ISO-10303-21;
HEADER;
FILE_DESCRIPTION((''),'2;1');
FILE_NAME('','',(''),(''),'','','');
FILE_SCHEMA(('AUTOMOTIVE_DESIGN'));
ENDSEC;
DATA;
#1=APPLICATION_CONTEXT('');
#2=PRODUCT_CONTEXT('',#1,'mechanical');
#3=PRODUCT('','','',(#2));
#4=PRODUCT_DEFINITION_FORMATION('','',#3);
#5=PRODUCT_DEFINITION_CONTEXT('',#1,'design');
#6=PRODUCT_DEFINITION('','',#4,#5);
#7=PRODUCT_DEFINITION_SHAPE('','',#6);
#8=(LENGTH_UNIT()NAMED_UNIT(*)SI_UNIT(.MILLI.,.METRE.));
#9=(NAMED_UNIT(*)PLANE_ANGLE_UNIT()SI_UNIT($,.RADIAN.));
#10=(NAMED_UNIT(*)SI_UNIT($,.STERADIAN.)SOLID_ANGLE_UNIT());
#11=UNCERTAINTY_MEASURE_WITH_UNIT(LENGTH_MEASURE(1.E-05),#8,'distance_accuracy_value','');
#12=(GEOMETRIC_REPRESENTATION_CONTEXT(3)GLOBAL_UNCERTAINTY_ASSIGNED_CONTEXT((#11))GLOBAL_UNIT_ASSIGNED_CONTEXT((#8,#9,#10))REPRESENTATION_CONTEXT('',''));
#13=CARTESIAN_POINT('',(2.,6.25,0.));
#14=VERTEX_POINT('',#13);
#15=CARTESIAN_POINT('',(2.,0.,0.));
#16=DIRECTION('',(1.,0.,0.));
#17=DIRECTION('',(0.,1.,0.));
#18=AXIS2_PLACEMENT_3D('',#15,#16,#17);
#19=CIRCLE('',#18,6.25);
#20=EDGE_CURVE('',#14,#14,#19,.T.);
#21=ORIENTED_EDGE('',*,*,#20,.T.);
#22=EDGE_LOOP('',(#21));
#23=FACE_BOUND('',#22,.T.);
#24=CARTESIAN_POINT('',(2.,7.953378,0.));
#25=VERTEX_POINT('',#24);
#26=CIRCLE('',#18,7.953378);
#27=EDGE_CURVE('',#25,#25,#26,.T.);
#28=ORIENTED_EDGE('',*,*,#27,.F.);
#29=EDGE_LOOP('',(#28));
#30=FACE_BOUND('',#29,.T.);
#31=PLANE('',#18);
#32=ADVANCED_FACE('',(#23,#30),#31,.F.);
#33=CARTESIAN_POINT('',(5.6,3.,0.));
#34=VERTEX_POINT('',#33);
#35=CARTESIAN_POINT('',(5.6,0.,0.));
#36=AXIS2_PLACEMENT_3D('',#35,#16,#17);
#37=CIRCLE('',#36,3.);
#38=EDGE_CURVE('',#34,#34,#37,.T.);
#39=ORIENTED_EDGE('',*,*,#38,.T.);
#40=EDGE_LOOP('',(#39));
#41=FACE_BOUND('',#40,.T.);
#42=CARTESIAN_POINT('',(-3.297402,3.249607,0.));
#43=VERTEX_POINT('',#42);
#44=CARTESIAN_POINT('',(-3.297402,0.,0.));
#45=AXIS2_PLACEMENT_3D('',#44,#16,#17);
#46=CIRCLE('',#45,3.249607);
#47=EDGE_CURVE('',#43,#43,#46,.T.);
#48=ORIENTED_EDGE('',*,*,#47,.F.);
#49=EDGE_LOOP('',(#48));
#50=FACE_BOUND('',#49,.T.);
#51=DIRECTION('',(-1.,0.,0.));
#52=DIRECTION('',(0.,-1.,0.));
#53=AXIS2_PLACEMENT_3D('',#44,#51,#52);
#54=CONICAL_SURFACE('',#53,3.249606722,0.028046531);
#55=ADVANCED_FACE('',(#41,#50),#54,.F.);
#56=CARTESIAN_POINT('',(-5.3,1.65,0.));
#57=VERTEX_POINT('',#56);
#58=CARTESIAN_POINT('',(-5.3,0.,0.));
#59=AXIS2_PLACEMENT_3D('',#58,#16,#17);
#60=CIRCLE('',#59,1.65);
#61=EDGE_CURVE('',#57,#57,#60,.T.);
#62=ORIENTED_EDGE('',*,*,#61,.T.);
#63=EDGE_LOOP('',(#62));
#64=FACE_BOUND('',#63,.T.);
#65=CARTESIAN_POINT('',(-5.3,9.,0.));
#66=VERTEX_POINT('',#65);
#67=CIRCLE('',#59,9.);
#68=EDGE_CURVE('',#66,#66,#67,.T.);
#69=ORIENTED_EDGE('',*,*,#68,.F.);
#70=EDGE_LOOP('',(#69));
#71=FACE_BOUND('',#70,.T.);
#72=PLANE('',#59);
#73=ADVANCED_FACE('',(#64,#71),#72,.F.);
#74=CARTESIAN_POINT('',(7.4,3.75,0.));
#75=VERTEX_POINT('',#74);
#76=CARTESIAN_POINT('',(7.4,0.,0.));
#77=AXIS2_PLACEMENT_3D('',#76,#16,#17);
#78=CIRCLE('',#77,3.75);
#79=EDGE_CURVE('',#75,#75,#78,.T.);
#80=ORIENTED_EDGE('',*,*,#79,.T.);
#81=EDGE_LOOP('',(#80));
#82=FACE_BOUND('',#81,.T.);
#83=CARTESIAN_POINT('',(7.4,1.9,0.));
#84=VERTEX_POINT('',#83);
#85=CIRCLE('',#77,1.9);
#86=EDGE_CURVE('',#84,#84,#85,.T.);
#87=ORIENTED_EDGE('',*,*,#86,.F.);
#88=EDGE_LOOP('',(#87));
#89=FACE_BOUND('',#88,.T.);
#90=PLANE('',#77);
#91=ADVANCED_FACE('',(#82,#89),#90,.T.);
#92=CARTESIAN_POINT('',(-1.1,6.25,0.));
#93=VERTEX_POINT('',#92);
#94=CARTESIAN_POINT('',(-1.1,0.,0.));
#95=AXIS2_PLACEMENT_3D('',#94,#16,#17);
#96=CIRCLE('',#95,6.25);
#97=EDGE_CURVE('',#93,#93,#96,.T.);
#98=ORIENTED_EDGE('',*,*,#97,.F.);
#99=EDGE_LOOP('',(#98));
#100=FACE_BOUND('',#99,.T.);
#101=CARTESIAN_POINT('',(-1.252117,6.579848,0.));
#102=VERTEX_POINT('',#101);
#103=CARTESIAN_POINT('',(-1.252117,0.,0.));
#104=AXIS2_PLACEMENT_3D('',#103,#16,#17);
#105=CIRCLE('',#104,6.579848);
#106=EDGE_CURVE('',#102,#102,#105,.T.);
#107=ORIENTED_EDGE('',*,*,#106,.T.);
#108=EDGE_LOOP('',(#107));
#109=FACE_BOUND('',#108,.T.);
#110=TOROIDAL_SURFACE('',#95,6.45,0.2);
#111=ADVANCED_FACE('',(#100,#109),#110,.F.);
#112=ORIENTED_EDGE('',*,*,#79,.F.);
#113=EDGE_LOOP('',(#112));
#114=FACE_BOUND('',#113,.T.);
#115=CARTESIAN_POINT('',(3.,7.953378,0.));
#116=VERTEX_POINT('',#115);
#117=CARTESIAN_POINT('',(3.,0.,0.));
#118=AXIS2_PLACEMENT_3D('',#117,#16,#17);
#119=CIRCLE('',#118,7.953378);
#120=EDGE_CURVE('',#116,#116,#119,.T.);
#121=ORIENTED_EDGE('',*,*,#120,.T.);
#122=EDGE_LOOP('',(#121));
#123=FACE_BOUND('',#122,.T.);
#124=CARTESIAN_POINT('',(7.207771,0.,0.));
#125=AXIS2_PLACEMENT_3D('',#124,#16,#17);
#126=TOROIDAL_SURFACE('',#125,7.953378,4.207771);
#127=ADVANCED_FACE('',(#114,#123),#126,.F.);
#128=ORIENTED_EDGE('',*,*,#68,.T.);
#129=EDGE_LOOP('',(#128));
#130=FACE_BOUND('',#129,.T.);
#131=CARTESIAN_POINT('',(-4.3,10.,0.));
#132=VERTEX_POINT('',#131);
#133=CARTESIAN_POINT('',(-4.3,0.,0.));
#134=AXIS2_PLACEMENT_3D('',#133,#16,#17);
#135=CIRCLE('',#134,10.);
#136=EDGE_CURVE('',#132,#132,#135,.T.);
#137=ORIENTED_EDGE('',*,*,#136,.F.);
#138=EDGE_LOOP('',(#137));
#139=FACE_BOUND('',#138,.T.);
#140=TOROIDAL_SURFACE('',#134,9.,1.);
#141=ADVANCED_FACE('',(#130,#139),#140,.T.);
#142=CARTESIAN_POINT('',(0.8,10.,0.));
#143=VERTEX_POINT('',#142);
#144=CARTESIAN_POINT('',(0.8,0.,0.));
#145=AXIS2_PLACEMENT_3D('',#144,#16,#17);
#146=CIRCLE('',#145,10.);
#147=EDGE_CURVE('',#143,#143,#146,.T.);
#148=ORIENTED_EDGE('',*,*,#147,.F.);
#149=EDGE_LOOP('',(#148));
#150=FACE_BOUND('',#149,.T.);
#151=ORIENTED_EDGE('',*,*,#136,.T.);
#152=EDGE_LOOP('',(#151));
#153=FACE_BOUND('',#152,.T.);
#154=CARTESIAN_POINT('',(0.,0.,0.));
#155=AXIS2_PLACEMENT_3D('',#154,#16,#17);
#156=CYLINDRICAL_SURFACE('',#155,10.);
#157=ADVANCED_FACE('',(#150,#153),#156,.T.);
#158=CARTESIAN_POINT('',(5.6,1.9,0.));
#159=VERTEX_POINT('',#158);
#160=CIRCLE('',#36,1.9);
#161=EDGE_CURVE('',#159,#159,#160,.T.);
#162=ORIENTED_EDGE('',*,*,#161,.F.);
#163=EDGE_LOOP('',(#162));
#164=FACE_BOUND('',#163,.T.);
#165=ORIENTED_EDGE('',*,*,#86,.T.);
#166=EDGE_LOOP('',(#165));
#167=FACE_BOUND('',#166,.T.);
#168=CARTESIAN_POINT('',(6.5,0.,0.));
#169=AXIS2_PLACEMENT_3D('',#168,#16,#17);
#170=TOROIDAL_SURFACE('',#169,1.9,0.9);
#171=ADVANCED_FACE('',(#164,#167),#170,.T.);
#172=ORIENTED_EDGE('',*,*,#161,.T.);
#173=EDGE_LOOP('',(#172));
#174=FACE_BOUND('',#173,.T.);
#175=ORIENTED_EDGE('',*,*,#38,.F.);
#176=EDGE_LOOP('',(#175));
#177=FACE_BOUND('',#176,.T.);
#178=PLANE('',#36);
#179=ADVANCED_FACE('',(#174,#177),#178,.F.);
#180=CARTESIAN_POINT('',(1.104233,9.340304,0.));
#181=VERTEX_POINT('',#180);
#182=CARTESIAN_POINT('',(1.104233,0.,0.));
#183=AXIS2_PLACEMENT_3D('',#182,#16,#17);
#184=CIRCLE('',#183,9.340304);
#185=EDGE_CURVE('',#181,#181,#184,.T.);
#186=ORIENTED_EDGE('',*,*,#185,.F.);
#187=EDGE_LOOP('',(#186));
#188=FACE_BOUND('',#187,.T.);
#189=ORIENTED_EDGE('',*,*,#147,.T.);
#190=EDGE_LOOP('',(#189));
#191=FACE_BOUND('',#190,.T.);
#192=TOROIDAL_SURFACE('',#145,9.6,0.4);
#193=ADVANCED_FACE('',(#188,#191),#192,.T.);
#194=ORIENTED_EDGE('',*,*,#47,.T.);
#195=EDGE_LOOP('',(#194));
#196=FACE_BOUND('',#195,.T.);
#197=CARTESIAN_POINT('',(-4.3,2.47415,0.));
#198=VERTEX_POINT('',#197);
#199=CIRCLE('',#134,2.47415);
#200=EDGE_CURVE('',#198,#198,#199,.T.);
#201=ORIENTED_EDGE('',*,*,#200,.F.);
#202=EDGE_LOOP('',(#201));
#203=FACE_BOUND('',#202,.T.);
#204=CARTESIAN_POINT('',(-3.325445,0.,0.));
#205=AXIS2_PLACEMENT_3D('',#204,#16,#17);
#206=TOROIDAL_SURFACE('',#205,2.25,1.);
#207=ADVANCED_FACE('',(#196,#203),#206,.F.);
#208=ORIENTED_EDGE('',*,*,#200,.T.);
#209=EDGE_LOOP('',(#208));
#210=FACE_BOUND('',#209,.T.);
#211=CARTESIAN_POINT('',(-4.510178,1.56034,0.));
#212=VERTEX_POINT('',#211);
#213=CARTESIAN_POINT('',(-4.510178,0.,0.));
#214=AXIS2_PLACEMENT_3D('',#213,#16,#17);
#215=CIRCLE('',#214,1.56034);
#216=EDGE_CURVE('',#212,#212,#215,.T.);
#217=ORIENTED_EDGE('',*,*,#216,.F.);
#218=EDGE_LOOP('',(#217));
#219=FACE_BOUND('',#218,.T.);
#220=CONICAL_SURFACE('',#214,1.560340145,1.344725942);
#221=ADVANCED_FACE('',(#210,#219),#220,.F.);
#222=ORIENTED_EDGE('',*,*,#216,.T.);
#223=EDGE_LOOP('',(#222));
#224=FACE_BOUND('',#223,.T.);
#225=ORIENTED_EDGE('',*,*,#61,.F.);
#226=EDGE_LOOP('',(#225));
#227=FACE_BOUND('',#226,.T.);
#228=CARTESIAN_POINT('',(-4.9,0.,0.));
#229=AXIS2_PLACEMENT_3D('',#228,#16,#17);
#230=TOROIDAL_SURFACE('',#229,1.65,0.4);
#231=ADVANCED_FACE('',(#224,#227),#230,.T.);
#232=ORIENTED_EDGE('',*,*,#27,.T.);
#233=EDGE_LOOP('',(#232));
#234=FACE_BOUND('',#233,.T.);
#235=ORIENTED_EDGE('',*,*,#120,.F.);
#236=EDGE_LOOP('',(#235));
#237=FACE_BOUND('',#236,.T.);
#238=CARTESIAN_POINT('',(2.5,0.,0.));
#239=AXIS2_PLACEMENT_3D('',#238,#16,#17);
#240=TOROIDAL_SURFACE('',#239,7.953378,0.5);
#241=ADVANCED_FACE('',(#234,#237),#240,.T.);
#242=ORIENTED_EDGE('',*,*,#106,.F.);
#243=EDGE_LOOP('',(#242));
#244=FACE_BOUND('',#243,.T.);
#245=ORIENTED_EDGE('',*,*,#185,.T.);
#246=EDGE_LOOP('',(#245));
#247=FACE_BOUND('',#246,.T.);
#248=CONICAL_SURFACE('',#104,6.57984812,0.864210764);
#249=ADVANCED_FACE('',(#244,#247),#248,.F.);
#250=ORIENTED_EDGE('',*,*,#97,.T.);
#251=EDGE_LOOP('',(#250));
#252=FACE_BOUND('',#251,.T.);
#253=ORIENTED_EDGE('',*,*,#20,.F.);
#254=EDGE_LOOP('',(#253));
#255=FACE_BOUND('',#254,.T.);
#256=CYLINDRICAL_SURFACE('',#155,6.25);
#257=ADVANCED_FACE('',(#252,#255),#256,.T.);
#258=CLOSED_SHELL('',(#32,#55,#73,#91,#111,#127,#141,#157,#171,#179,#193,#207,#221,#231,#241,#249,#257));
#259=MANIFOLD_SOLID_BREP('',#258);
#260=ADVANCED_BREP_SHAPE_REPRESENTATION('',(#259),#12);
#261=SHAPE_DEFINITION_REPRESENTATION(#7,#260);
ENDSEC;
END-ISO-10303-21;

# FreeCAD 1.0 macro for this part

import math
import FreeCAD as App
import Part
import Sketcher
Q = App.Units.Quantity

doc = App.newDocument("Part")
body = doc.addObject("PartDesign::Body", "Body")

# Sketch on XY plane
sketch1 = doc.addObject("Sketcher::SketchObject", "Sketch")
body.addObject(sketch1)
sketch1.AttachmentSupport = (doc.XY_Plane, [""])
sketch1.MapMode = "FlatFace"
sketch1.addGeometry(Part.LineSegment(App.Vector(-5.3, 9, 0), App.Vector(-5.3, 1.65, 0)), False)
sketch1.addGeometry(Part.ArcOfCircle(Part.Circle(App.Vector(-4.9, 1.65, 0), App.Vector(0, 0, 1), 0.4), math.radians(180), math.radians(347)), False)
sketch1.addGeometry(Part.LineSegment(App.Vector(-4.51, 1.56, 0), App.Vector(-4.3, 2.47, 0)), False)
sketch1.addGeometry(Part.ArcOfCircle(Part.Circle(App.Vector(-3.33, 2.25, 0), App.Vector(0, 0, 1), 1), math.radians(88), math.radians(167)), False)
sketch1.addGeometry(Part.LineSegment(App.Vector(-3.3, 3.25, 0), App.Vector(5.6, 3, 0)), False)
sketch1.addGeometry(Part.LineSegment(App.Vector(5.6, 3, 0), App.Vector(5.6, 1.9, 0)), False)
sketch1.addGeometry(Part.ArcOfCircle(Part.Circle(App.Vector(6.5, 1.9, 0), App.Vector(0, 0, 1), 0.9), math.radians(180), math.radians(360)), False)
sketch1.addGeometry(Part.LineSegment(App.Vector(7.4, 1.9, 0), App.Vector(7.4, 3.75, 0)), False)
sketch1.addGeometry(Part.ArcOfCircle(Part.Circle(App.Vector(7.21, 7.95, 0), App.Vector(0, 0, 1), 4.21), math.radians(180), math.radians(273)), False)
sketch1.addGeometry(Part.ArcOfCircle(Part.Circle(App.Vector(2.5, 7.95, 0), App.Vector(0, 0, 1), 0.5), math.radians(0), math.radians(180)), False)
sketch1.addGeometry(Part.LineSegment(App.Vector(2, 7.95, 0), App.Vector(2, 6.25, 0)), False)
sketch1.addGeometry(Part.LineSegment(App.Vector(2, 6.25, 0), App.Vector(-1.1, 6.25, 0)), False)
sketch1.addGeometry(Part.ArcOfCircle(Part.Circle(App.Vector(-1.1, 6.45, 0), App.Vector(0, 0, 1), 0.2), math.radians(166), math.radians(270)), False)
sketch1.addGeometry(Part.LineSegment(App.Vector(-1.29, 6.5, 0), App.Vector(-0.43, 10, 0)), False)
sketch1.addGeometry(Part.LineSegment(App.Vector(-0.43, 10, 0), App.Vector(-4.3, 10, 0)), False)
sketch1.addGeometry(Part.ArcOfCircle(Part.Circle(App.Vector(-4.3, 9, 0), App.Vector(0, 0, 1), 1), math.radians(90), math.radians(180)), False)
sketch1.addConstraint(Sketcher.Constraint("Tangent", 0, 2, 1, 1))
sketch1.addConstraint(Sketcher.Constraint("Tangent", 1, 2, 2, 1))
sketch1.addConstraint(Sketcher.Constraint("Tangent", 2, 2, 3, 2))
sketch1.addConstraint(Sketcher.Constraint("Tangent", 3, 1, 4, 1))
sketch1.addConstraint(Sketcher.Constraint("Coincident", 4, 2, 5, 1))
sketch1.addConstraint(Sketcher.Constraint("Tangent", 5, 2, 6, 1))
sketch1.addConstraint(Sketcher.Constraint("Tangent", 6, 2, 7, 1))
sketch1.addConstraint(Sketcher.Constraint("Coincident", 7, 2, 8, 2))
sketch1.addConstraint(Sketcher.Constraint("Tangent", 8, 1, 9, 1))
sketch1.addConstraint(Sketcher.Constraint("Tangent", 9, 2, 10, 1))
sketch1.addConstraint(Sketcher.Constraint("Coincident", 10, 2, 11, 1))
sketch1.addConstraint(Sketcher.Constraint("Tangent", 11, 2, 12, 2))
sketch1.addConstraint(Sketcher.Constraint("Tangent", 12, 1, 13, 1))
sketch1.addConstraint(Sketcher.Constraint("Coincident", 13, 2, 14, 1))
sketch1.addConstraint(Sketcher.Constraint("Tangent", 14, 2, 15, 1))
sketch1.addConstraint(Sketcher.Constraint("Tangent", 15, 2, 0, 1))
sketch1.addConstraint(Sketcher.Constraint("Vertical", 0))
sketch1.addConstraint(Sketcher.Constraint("Vertical", 5))
sketch1.addConstraint(Sketcher.Constraint("Vertical", 7))
sketch1.addConstraint(Sketcher.Constraint("Vertical", 10))
sketch1.addConstraint(Sketcher.Constraint("Horizontal", 11))
sketch1.addConstraint(Sketcher.Constraint("Horizontal", 14))
sketch1.addConstraint(Sketcher.Constraint("Equal", 3, 15))
sketch1.addConstraint(Sketcher.Constraint("Horizontal", 8, 3, 9, 3))
sketch1.addConstraint(Sketcher.Constraint("Vertical", 15, 3, 2, 2))
sketch1.addConstraint(Sketcher.Constraint("Radius", 3, Q("1 mm")))
sketch1.addConstraint(Sketcher.Constraint("Radius", 1, Q("0.4 mm")))
sketch1.addConstraint(Sketcher.Constraint("Radius", 6, Q("0.9 mm")))
sketch1.addConstraint(Sketcher.Constraint("Radius", 9, Q("0.5 mm")))
sketch1.addConstraint(Sketcher.Constraint("Radius", 12, Q("0.2 mm")))
sketch1.addConstraint(Sketcher.Constraint("DistanceX", 11, 2, 11, 1, Q("3.1 mm")))
sketch1.addConstraint(Sketcher.Constraint("DistanceY", 5, 2, 5, 1, Q("1.1 mm")))
sketch1.addConstraint(Sketcher.Constraint("DistanceY", -1, 1, 15, 3, Q("9 mm")))
sketch1.addConstraint(Sketcher.Constraint("DistanceY", -1, 1, 4, 2, Q("3 mm")))
sketch1.addConstraint(Sketcher.Constraint("DistanceX", -1, 1, 8, 1, Q("3 mm")))
sketch1.addConstraint(Sketcher.Constraint("DistanceX", 9, 3, 6, 3, Q("4 mm")))
sketch1.addConstraint(Sketcher.Constraint("DistanceY", 0, 2, 0, 1, Q("7.35 mm")))
sketch1.addConstraint(Sketcher.Constraint("DistanceY", 7, 1, 7, 2, Q("1.85 mm")))
sketch1.addConstraint(Sketcher.Constraint("DistanceX", 1, 3, -1, 1, Q("4.9 mm")))
sketch1.addConstraint(Sketcher.Constraint("DistanceY", 1, 3, 3, 3, Q("0.6 mm")))
sketch1.addConstraint(Sketcher.Constraint("DistanceY", 3, 3, 12, 3, Q("4.2 mm")))
sketch1.addConstraint(Sketcher.Constraint("Radius", 8, Q("4.207771 mm")))
sketch1.addConstraint(Sketcher.Constraint("DistanceX", 14, 2, 14, 1, Q("3.871097 mm")))
revolution = doc.addObject("PartDesign::Revolution", "Revolution")
body.addObject(revolution)
revolution.Profile = sketch1
revolution.ReferenceAxis = (sketch1, ["H_Axis"])
revolution.Angle = 360

# Sketch on XY plane
sketch2 = doc.addObject("Sketcher::SketchObject", "Sketch001")
body.addObject(sketch2)
sketch2.AttachmentSupport = (doc.XY_Plane, [""])
sketch2.MapMode = "FlatFace"
sketch2.addGeometry(Part.LineSegment(App.Vector(0.8, 10, 0), App.Vector(-0.43, 10, 0)), False)
sketch2.addGeometry(Part.LineSegment(App.Vector(-0.43, 10, 0), App.Vector(-1.29, 6.5, 0)), False)
sketch2.addGeometry(Part.ArcOfCircle(Part.Circle(App.Vector(-1.1, 6.45, 0), App.Vector(0, 0, 1), 0.2), math.radians(140), math.radians(166)), False)
sketch2.addGeometry(Part.LineSegment(App.Vector(-1.25, 6.58, 0), App.Vector(1.1, 9.34, 0)), False)
sketch2.addGeometry(Part.ArcOfCircle(Part.Circle(App.Vector(0.8, 9.6, 0), App.Vector(0, 0, 1), 0.4), math.radians(-40), math.radians(90)), False)
sketch2.addConstraint(Sketcher.Constraint("Coincident", 0, 2, 1, 1))
sketch2.addConstraint(Sketcher.Constraint("Tangent", 1, 2, 2, 2))
sketch2.addConstraint(Sketcher.Constraint("Tangent", 2, 1, 3, 1))
sketch2.addConstraint(Sketcher.Constraint("Tangent", 3, 2, 4, 1))
sketch2.addConstraint(Sketcher.Constraint("Tangent", 4, 2, 0, 1))
sketch2.addConstraint(Sketcher.Constraint("Horizontal", 0))
sketch2.addConstraint(Sketcher.Constraint("Radius", 2, Q("0.2 mm")))
sketch2.addConstraint(Sketcher.Constraint("Radius", 4, Q("0.4 mm")))
sketch2.addConstraint(Sketcher.Constraint("DistanceY", -1, 1, 0, 2, Q("10 mm")))
sketch2.addConstraint(Sketcher.Constraint("DistanceX", 2, 3, -1, 1, Q("1.1 mm")))
sketch2.addConstraint(Sketcher.Constraint("DistanceX", -1, 1, 4, 3, Q("0.8 mm")))
sketch2.addConstraint(Sketcher.Constraint("DistanceY", -1, 1, 2, 3, Q("6.45 mm")))
sketch2.addConstraint(Sketcher.Constraint("DistanceX", 0, 2, 0, 1, Q("1.228903 mm")))
revolution2 = doc.addObject("PartDesign::Revolution", "Revolution001")
body.addObject(revolution2)
revolution2.Profile = sketch2
revolution2.ReferenceAxis = (sketch2, ["H_Axis"])
revolution2.Angle = 360

doc.recompute()
